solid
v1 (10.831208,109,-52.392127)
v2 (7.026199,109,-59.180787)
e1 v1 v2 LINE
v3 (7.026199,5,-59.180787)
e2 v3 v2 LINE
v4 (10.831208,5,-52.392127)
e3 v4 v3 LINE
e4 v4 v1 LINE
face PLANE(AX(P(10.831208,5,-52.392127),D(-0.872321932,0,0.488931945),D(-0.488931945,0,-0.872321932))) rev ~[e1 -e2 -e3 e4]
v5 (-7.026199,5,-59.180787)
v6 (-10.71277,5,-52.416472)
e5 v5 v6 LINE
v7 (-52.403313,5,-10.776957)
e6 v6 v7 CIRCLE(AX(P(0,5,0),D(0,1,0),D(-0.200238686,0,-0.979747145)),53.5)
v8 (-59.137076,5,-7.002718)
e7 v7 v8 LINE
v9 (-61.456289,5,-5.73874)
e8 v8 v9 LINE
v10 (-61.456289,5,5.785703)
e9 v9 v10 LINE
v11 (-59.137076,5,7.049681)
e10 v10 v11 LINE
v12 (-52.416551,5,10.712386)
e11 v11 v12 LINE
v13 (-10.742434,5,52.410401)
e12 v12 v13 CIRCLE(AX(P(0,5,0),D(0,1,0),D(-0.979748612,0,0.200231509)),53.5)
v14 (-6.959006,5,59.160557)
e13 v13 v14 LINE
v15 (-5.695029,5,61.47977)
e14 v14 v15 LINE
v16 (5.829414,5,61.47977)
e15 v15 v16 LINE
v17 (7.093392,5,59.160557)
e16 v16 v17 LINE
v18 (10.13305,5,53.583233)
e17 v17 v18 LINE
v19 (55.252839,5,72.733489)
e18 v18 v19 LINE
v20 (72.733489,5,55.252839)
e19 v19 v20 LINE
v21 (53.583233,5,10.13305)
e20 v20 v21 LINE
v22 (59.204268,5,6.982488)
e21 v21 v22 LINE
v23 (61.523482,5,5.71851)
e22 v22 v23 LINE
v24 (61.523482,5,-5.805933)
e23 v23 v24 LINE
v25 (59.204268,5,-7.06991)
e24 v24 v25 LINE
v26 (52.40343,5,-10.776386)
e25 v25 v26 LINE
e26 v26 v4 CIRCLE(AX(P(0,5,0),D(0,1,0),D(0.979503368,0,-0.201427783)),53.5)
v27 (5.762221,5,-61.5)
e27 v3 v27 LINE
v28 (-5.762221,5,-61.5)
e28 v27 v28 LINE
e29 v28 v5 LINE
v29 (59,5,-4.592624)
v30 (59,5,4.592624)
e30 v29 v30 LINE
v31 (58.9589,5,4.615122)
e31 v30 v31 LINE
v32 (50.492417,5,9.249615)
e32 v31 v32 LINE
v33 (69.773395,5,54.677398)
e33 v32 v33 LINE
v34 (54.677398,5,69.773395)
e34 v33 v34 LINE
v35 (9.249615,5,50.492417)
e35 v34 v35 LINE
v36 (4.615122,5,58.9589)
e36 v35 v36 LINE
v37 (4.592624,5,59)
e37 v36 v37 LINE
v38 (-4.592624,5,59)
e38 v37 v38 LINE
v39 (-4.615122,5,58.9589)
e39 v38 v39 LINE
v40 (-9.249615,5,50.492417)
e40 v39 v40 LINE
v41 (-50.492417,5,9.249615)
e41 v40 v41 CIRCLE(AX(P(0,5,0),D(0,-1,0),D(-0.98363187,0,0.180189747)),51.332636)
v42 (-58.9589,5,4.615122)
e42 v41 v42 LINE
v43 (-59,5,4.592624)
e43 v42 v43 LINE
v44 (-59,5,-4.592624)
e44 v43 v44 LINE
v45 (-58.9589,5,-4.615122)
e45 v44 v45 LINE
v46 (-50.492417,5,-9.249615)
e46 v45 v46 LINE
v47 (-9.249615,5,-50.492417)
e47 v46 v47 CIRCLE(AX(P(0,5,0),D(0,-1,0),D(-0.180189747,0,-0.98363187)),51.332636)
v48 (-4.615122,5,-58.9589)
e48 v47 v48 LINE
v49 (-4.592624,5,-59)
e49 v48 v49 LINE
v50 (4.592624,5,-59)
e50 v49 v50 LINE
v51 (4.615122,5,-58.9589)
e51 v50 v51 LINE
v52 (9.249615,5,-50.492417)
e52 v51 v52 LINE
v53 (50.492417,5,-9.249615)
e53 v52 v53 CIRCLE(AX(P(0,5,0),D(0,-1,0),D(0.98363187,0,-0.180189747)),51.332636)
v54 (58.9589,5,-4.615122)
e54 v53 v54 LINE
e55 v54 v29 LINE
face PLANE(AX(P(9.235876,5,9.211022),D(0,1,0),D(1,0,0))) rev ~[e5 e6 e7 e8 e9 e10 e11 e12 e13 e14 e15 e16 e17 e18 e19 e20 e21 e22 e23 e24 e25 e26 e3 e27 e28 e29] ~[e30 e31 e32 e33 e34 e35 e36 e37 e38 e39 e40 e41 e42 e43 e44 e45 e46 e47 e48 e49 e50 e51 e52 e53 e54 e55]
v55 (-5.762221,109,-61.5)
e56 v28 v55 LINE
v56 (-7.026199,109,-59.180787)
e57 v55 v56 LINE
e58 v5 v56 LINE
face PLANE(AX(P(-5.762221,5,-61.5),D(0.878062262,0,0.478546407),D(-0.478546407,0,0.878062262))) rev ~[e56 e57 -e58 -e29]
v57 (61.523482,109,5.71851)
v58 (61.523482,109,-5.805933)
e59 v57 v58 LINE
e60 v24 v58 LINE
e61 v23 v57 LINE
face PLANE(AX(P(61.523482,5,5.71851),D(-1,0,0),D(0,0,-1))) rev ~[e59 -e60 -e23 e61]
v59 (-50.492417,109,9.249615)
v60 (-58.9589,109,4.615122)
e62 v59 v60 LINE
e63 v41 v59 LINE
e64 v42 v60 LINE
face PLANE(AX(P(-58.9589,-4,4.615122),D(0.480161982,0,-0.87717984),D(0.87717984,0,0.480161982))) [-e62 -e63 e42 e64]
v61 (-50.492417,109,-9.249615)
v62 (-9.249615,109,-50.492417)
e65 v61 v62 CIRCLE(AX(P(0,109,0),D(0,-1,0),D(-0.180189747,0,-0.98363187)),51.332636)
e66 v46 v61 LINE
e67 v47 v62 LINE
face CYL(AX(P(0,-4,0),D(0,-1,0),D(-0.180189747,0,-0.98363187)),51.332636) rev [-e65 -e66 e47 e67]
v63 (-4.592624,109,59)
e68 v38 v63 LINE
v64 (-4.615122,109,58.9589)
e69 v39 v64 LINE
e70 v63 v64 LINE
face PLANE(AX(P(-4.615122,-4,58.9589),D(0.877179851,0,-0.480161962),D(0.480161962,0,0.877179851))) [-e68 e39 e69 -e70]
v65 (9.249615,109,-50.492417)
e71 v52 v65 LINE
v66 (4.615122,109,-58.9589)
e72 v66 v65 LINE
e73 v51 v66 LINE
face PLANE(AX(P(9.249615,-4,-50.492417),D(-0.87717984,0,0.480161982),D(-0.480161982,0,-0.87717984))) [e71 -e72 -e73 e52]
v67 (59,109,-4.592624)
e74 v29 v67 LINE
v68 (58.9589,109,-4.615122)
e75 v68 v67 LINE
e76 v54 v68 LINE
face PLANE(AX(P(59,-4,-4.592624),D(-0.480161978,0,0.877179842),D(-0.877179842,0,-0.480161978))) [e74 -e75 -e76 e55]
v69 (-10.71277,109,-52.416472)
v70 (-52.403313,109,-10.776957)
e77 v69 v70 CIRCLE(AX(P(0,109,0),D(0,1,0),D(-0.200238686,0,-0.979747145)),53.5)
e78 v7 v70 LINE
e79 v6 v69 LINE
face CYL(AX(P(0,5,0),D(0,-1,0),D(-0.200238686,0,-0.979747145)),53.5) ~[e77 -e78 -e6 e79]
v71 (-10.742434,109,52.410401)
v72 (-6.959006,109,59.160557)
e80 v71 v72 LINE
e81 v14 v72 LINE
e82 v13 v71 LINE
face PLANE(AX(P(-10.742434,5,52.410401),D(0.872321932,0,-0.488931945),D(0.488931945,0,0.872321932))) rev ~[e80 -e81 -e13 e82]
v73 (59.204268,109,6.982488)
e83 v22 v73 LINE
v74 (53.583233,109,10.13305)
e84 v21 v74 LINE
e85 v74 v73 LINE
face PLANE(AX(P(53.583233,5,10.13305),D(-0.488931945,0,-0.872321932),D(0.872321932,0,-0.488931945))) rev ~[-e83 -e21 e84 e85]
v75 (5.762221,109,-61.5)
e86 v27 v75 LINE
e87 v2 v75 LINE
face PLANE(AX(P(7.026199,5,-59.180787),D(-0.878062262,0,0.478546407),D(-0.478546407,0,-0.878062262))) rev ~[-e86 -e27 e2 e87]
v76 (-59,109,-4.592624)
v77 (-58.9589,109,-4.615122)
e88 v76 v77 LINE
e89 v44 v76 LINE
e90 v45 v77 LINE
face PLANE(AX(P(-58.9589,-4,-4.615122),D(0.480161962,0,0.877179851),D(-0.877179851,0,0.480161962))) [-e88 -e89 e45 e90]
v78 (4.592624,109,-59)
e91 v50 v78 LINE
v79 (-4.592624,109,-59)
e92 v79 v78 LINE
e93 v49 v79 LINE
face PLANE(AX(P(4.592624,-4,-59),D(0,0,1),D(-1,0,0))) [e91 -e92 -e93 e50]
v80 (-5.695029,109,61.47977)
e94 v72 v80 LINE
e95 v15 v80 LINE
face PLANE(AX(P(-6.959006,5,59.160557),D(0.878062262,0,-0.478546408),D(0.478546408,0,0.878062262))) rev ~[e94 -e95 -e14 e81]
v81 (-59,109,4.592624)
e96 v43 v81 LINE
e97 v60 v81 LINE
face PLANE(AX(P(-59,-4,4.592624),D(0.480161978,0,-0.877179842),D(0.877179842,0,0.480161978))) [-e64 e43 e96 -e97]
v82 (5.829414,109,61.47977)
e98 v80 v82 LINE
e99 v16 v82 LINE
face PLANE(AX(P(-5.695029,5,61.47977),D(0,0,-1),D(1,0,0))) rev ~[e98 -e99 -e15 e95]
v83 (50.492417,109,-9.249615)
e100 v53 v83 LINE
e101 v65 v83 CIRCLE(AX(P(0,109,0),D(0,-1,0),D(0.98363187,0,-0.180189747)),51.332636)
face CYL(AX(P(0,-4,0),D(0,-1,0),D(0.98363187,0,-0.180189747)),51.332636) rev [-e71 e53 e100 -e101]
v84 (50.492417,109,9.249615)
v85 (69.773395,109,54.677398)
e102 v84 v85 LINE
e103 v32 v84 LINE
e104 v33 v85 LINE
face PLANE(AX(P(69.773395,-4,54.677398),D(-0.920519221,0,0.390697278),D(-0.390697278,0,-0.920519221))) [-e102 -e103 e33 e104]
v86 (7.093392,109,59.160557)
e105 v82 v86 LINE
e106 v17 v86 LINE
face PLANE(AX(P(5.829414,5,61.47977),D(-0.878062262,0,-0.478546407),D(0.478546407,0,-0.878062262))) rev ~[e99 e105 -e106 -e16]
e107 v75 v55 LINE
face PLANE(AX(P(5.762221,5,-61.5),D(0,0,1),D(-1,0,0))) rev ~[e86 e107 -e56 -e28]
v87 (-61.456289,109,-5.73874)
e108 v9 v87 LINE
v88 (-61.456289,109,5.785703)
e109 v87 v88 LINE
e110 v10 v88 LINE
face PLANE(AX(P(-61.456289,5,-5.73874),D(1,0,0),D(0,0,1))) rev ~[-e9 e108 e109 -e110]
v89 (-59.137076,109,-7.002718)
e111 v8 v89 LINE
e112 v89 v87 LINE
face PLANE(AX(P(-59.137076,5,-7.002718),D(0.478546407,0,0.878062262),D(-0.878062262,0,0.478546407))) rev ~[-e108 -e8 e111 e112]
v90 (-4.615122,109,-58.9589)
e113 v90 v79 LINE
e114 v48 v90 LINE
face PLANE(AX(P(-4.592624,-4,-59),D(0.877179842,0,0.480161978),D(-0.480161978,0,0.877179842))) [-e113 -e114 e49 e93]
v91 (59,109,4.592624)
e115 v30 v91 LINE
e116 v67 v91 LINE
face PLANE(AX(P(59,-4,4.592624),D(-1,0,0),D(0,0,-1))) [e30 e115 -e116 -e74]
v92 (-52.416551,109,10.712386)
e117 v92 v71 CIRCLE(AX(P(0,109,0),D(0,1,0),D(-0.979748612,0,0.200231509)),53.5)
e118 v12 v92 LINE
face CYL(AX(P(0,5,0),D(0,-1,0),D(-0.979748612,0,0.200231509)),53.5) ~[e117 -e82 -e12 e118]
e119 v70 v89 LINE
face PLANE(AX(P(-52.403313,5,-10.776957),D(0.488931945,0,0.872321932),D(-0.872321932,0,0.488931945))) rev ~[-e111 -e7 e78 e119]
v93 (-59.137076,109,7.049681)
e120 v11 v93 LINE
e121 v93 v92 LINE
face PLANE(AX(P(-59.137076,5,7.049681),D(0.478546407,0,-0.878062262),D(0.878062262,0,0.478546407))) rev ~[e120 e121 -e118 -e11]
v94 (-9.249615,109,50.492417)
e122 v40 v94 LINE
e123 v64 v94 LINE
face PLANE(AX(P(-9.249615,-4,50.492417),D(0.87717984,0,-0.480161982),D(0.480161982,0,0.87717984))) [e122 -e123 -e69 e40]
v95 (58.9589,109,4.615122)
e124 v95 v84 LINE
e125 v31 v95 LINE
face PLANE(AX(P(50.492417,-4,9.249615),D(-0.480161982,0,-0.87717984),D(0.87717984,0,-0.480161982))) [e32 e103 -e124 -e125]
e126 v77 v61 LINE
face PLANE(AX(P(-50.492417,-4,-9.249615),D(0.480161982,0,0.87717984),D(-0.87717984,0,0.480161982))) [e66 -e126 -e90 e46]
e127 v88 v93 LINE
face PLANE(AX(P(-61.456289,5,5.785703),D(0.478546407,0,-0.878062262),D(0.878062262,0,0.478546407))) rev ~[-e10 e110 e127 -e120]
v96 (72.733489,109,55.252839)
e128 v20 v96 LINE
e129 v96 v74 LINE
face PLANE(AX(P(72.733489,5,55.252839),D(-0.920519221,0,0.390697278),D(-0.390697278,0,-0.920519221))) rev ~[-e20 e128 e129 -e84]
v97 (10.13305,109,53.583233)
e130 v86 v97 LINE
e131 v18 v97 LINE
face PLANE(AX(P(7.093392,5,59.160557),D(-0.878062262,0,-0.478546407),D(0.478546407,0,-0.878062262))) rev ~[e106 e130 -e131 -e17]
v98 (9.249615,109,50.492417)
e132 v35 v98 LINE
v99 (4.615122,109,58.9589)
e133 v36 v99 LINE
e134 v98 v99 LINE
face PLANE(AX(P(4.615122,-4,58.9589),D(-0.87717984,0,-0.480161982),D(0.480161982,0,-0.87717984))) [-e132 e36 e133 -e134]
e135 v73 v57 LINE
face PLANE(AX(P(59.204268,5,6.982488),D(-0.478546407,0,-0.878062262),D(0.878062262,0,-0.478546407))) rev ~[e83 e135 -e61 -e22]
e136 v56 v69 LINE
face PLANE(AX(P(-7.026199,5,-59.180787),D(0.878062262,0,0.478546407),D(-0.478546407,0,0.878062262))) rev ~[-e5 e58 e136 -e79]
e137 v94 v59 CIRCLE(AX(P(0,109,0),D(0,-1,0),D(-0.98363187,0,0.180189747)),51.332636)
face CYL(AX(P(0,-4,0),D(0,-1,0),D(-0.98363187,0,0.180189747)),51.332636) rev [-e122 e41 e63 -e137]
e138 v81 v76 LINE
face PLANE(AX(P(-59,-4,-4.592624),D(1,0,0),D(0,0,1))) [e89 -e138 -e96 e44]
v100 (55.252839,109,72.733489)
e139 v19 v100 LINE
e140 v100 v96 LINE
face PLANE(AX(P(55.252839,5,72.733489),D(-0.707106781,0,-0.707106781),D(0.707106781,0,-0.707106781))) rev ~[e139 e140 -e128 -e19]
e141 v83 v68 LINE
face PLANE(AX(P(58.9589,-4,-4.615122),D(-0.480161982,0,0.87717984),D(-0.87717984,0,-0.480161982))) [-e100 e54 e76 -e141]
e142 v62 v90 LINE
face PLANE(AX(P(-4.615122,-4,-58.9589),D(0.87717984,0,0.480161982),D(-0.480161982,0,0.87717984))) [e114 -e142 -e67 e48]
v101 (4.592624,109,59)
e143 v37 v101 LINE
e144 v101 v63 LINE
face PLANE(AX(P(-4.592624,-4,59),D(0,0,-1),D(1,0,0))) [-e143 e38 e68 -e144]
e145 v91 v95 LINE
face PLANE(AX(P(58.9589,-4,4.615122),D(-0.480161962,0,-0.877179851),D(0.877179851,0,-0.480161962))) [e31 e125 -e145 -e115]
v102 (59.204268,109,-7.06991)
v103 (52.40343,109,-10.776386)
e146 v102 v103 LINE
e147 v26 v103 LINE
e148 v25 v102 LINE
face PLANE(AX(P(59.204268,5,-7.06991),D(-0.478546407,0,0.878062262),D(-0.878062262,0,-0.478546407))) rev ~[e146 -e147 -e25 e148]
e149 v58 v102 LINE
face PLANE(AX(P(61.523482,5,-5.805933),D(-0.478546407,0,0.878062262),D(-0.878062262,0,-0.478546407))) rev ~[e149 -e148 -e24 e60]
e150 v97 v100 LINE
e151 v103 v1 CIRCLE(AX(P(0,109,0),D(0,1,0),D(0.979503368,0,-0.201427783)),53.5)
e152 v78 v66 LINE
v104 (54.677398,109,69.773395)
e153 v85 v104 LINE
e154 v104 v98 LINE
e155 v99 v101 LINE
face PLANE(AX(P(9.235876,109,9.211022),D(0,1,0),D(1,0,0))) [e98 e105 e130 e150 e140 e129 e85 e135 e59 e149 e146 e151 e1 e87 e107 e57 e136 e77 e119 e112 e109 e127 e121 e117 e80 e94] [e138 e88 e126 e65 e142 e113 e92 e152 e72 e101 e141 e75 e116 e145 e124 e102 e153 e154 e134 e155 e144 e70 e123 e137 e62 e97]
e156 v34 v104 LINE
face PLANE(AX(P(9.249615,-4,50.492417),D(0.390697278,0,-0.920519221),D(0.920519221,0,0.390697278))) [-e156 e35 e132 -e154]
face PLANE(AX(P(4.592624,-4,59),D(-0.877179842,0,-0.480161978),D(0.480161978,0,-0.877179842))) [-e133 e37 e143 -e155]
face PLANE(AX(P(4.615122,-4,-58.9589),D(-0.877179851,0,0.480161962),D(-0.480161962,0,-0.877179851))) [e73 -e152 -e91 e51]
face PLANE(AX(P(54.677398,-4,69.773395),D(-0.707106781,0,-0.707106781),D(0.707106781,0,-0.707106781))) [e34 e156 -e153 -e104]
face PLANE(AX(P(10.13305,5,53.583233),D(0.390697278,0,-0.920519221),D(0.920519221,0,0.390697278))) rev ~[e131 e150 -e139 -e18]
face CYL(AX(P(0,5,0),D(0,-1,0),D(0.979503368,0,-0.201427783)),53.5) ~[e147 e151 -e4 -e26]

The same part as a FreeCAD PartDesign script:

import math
import FreeCAD as App
import Part
import Sketcher
Q = App.Units.Quantity

doc = App.newDocument("Part")
body = doc.addObject("PartDesign::Body", "Body")

# Sketch on XZ plane
sketch1 = body.newObject("Sketcher::SketchObject", "Sketch")
sketch1.AttachmentSupport = (doc.getObject("XZ_Plane"), [""])
sketch1.MapMode = "FlatFace"
sketch1.addGeometry([
    Part.LineSegment(App.Vector(9, -49, 0), App.Vector(4, -58, 0)),  # 0
    Part.LineSegment(App.Vector(4, -58, 0), App.Vector(-4, -58, 0)),  # 1
    Part.LineSegment(App.Vector(-4, -58, 0), App.Vector(-9, -49, 0)),  # 2
    Part.ArcOfCircle(Part.Circle(App.Vector(0, 0, 0), App.Vector(0, 0, 1), 50), math.radians(-170), math.radians(-100)),  # 3
    Part.LineSegment(App.Vector(-49, -9, 0), App.Vector(-58, -4, 0)),  # 4
    Part.LineSegment(App.Vector(-58, -4, 0), App.Vector(-58, 4, 0)),  # 5
    Part.LineSegment(App.Vector(-58, 4, 0), App.Vector(-49, 9, 0)),  # 6
    Part.ArcOfCircle(Part.Circle(App.Vector(0, 0, 0), App.Vector(0, 0, 1), 50), math.radians(100), math.radians(170)),  # 7
    Part.LineSegment(App.Vector(-9, 49, 0), App.Vector(-4, 58, 0)),  # 8
    Part.LineSegment(App.Vector(-4, 58, 0), App.Vector(4, 58, 0)),  # 9
    Part.LineSegment(App.Vector(4, 58, 0), App.Vector(9, 49, 0)),  # 10
    Part.ArcOfCircle(Part.Circle(App.Vector(0, 0, 0), App.Vector(0, 0, 1), 50), math.radians(10), math.radians(80)),  # 11
    Part.LineSegment(App.Vector(49, 9, 0), App.Vector(58, 4, 0)),  # 12
    Part.LineSegment(App.Vector(58, 4, 0), App.Vector(58, -4, 0)),  # 13
    Part.LineSegment(App.Vector(58, -4, 0), App.Vector(49, -9, 0)),  # 14
    Part.ArcOfCircle(Part.Circle(App.Vector(0, 0, 0), App.Vector(0, 0, 1), 50), math.radians(-80), math.radians(-10)),  # 15
], False)
sketch1.addConstraint([
    Sketcher.Constraint("Coincident", 0, 2, 1, 1),
    Sketcher.Constraint("Coincident", 1, 2, 2, 1),
    Sketcher.Constraint("Coincident", 2, 2, 3, 2),
    Sketcher.Constraint("Coincident", 3, 1, 4, 1),
    Sketcher.Constraint("Coincident", 4, 2, 5, 1),
    Sketcher.Constraint("Coincident", 5, 2, 6, 1),
    Sketcher.Constraint("Coincident", 6, 2, 7, 2),
    Sketcher.Constraint("Coincident", 7, 1, 8, 1),
    Sketcher.Constraint("Coincident", 8, 2, 9, 1),
    Sketcher.Constraint("Coincident", 9, 2, 10, 1),
    Sketcher.Constraint("Coincident", 10, 2, 11, 2),
    Sketcher.Constraint("Coincident", 11, 1, 12, 1),
    Sketcher.Constraint("Coincident", 12, 2, 13, 1),
    Sketcher.Constraint("Coincident", 13, 2, 14, 1),
    Sketcher.Constraint("Coincident", 14, 2, 15, 2),
    Sketcher.Constraint("Coincident", 15, 1, 0, 1),
    Sketcher.Constraint("Horizontal", 1),
    Sketcher.Constraint("Vertical", 5),
    Sketcher.Constraint("Horizontal", 9),
    Sketcher.Constraint("Vertical", 13),
    Sketcher.Constraint("Coincident", 3, 3, -1, 1),
    Sketcher.Constraint("Coincident", 7, 3, -1, 1),
    Sketcher.Constraint("Coincident", 11, 3, -1, 1),
    Sketcher.Constraint("Coincident", 15, 3, -1, 1),
    Sketcher.Constraint("Equal", 3, 7),
    Sketcher.Constraint("Equal", 7, 11),
    Sketcher.Constraint("Equal", 11, 15),
    Sketcher.Constraint("Symmetric", 0, 2, 8, 2, -1, 1),
    Sketcher.Constraint("Symmetric", 4, 2, 12, 2, -1, 1),
    Sketcher.Constraint("Perpendicular", 0, 4),
    Sketcher.Constraint("Perpendicular", 2, 6),
    Sketcher.Constraint("Perpendicular", 4, 8),
    Sketcher.Constraint("Perpendicular", 6, 10),
    Sketcher.Constraint("Perpendicular", 8, 12),
    Sketcher.Constraint("Perpendicular", 10, 14),
    Sketcher.Constraint("Horizontal", 7, 1, 10, 2),
    Sketcher.Constraint("Horizontal", 6, 2, 11, 1),
    Sketcher.Constraint("Horizontal", 5, 2, 12, 2),
    Sketcher.Constraint("Horizontal", 4, 2, 13, 2),
    Sketcher.Constraint("Horizontal", 2, 2, 15, 1),
    Sketcher.Constraint("Equal", 9, 5),
    Sketcher.Constraint("Equal", 2, 4),
    Sketcher.Constraint("Radius", 3, 50.0),
    Sketcher.Constraint("DistanceX", 1, 2, 1, 1, 8.0),
    Sketcher.Constraint("DistanceY", 0, 2, -1, 1, 58.0),
    Sketcher.Constraint("DistanceX", 2, 2, -1, 1, 8.807071),
])
pad1 = body.newObject("PartDesign::Pad", "Pad")
pad1.Profile = sketch1
pad1.Length = 5
pad1.Reversed = True

# Sketch on XZ plane
sketch2 = body.newObject("Sketcher::SketchObject", "Sketch001")
sketch2.AttachmentSupport = (doc.getObject("XZ_Plane"), [""])
sketch2.MapMode = "FlatFace"
sketch2.AttachmentOffset = App.Placement(App.Vector(0, 0, -5), App.Rotation())
sketch2.addGeometry([
    Part.Circle(App.Vector(0, -52.7, 0), App.Vector(0, 0, 1), 2.1),
    Part.Circle(App.Vector(52.7, 0, 0), App.Vector(0, 0, 1), 2.1),
    Part.Circle(App.Vector(0, 52.7, 0), App.Vector(0, 0, 1), 2.1),
    Part.Circle(App.Vector(-52.7, 0, 0), App.Vector(0, 0, 1), 2.1),
], False)
sketch2.addConstraint([
    Sketcher.Constraint("Equal", 0, 1),
    Sketcher.Constraint("Equal", 1, 2),
    Sketcher.Constraint("Equal", 2, 3),
    Sketcher.Constraint("Symmetric", 0, 3, 2, 3, -1, 1),
    Sketcher.Constraint("Symmetric", 1, 3, 3, 3, -1, 1),
    Sketcher.Constraint("PointOnObject", 0, 3, -2),
    Sketcher.Constraint("PointOnObject", 1, 3, -1),
    Sketcher.Constraint("Diameter", 0, 4.2),
    Sketcher.Constraint("DistanceY", 0, 3, -1, 1, 52.7),
    Sketcher.Constraint("DistanceX", -1, 1, 1, 3, 52.7),
])
pocket1 = body.newObject("PartDesign::Pocket", "Pocket")
pocket1.Profile = sketch2
pocket1.Type = "ThroughAll"
pocket1.Reversed = True

# Sketch on XZ plane
sketch3 = body.newObject("Sketcher::SketchObject", "Sketch002")
sketch3.AttachmentSupport = (doc.getObject("XZ_Plane"), [""])
sketch3.MapMode = "FlatFace"
sketch3.AttachmentOffset = App.Placement(App.Vector(0, 0, -5), App.Rotation())
sketch3.addGeometry([
    Part.LineSegment(App.Vector(35, 21, 0), App.Vector(21, 35, 0)),  # 0
    Part.LineSegment(App.Vector(21, 35, 0), App.Vector(33, 47, 0)),  # 1
    Part.LineSegment(App.Vector(33, 47, 0), App.Vector(53, 67, 0)),  # 2
    Part.LineSegment(App.Vector(53, 67, 0), App.Vector(67, 53, 0)),  # 3
    Part.LineSegment(App.Vector(67, 53, 0), App.Vector(47, 33, 0)),  # 4
    Part.LineSegment(App.Vector(47, 33, 0), App.Vector(35, 21, 0)),  # 5
], False)
sketch3.addConstraint([
    Sketcher.Constraint("Coincident", 0, 2, 1, 1),
    Sketcher.Constraint("Coincident", 1, 2, 2, 1),
    Sketcher.Constraint("Coincident", 2, 2, 3, 1),
    Sketcher.Constraint("Coincident", 3, 2, 4, 1),
    Sketcher.Constraint("Coincident", 4, 2, 5, 1),
    Sketcher.Constraint("Coincident", 5, 2, 0, 1),
    Sketcher.Constraint("Perpendicular", 0, 1),
    Sketcher.Constraint("Parallel", 1, 2),
    Sketcher.Constraint("Perpendicular", 2, 3),
    Sketcher.Constraint("Perpendicular", 3, 4),
    Sketcher.Constraint("Parallel", 4, 5),
    Sketcher.Constraint("Equal", 2, 4),
    Sketcher.Constraint("Angle", 0, Q("135 deg")),
    Sketcher.Constraint("Distance", 0, 20.0),
    Sketcher.Constraint("Distance", 1, 18.0),
    Sketcher.Constraint("Distance", 2, 28.06195),
    Sketcher.Constraint("DistanceX", -1, 1, 1, 2, 33.234019),
    Sketcher.Constraint("DistanceY", -1, 1, 2, 2, 67.218949),
])
pocket2 = body.newObject("PartDesign::Pocket", "Pocket001")
pocket2.Profile = sketch3
pocket2.Type = "ThroughAll"
pocket2.Reversed = True

# Sketch on XZ plane
sketch4 = body.newObject("Sketcher::SketchObject", "Sketch003")
sketch4.AttachmentSupport = (doc.getObject("XZ_Plane"), [""])
sketch4.MapMode = "FlatFace"
sketch4.AttachmentOffset = App.Placement(App.Vector(0, 0, -5), App.Rotation())
sketch4.addGeometry([
    Part.Circle(App.Vector(-7.8, -7.8, 0), App.Vector(0, 0, 1), 2),  # 0
    Part.Circle(App.Vector(7.8, -7.8, 0), App.Vector(0, 0, 1), 2),  # 1
    Part.Circle(App.Vector(7.8, 7.8, 0), App.Vector(0, 0, 1), 2),  # 2
    Part.Circle(App.Vector(-7.8, 7.8, 0), App.Vector(0, 0, 1), 2),  # 3
    Part.LineSegment(App.Vector(21.6, 30, 0), App.Vector(23.3, 31.8, 0)),  # 4
    Part.LineSegment(App.Vector(23.3, 31.8, 0), App.Vector(24.7, 30.4, 0)),  # 5
    Part.LineSegment(App.Vector(24.7, 30.4, 0), App.Vector(23, 28.6, 0)),  # 6
    Part.ArcOfCircle(Part.Circle(App.Vector(21, 28.1, 0), App.Vector(0, 0, 1), 2), math.radians(75), math.radians(375)),  # 7
    Part.LineSegment(App.Vector(28.6, 23, 0), App.Vector(31, 25.3, 0)),  # 8
    Part.LineSegment(App.Vector(31, 25.3, 0), App.Vector(32.4, 23.9, 0)),  # 9
    Part.LineSegment(App.Vector(32.4, 23.9, 0), App.Vector(30, 21.6, 0)),  # 10
    Part.ArcOfCircle(Part.Circle(App.Vector(28.1, 21, 0), App.Vector(0, 0, 1), 2), math.radians(75), math.radians(375)),  # 11
], False)
sketch4.addConstraint([
    Sketcher.Constraint("Coincident", 4, 2, 5, 1),
    Sketcher.Constraint("Coincident", 5, 2, 6, 1),
    Sketcher.Constraint("Coincident", 6, 2, 7, 2),
    Sketcher.Constraint("Coincident", 7, 1, 4, 1),
    Sketcher.Constraint("Coincident", 8, 2, 9, 1),
    Sketcher.Constraint("Coincident", 9, 2, 10, 1),
    Sketcher.Constraint("Coincident", 10, 2, 11, 2),
    Sketcher.Constraint("Coincident", 11, 1, 8, 1),
    Sketcher.Constraint("Equal", 0, 1),
    Sketcher.Constraint("Equal", 1, 2),
    Sketcher.Constraint("Equal", 2, 3),
    Sketcher.Constraint("Equal", 7, 11),
    Sketcher.Constraint("Symmetric", 0, 3, 2, 3, -1, 1),
    Sketcher.Constraint("Symmetric", 1, 3, 3, 3, -1, 1),
    Sketcher.Constraint("Symmetric", 0, 3, 1, 3, -2),
    Sketcher.Constraint("Perpendicular", 4, 5),
    Sketcher.Constraint("Perpendicular", 5, 6),
    Sketcher.Constraint("Parallel", 6, 8),
    Sketcher.Constraint("Perpendicular", 8, 9),
    Sketcher.Constraint("Perpendicular", 9, 10),
    Sketcher.Constraint("Equal", 4, 6),
    Sketcher.Constraint("Equal", 5, 9),
    Sketcher.Constraint("Equal", 8, 10),
    Sketcher.Constraint("Radius", 7, 2.0),
    Sketcher.Constraint("Diameter", 0, 4.1),
    Sketcher.Constraint("Angle", 4, Q("45 deg")),
    Sketcher.Constraint("Distance", 5, 2.0),
    Sketcher.Constraint("DistanceX", 0, 3, -1, 1, 7.78),
    Sketcher.Constraint("DistanceY", 0, 3, -1, 1, 7.78),
    Sketcher.Constraint("DistanceY", 9, 2, 4, 2, 7.904699),
    Sketcher.Constraint("Distance", 4, 2.517949),
    Sketcher.Constraint("DistanceY", -1, 1, 5, 2, 30.405592),
    Sketcher.Constraint("DistanceX", -1, 1, 6, 2, 22.968278),
    Sketcher.Constraint("DistanceY", -1, 1, 11, 1, 22.968278),
    Sketcher.Constraint("DistanceX", 4, 2, 11, 3, 4.772971),
])
pocket3 = body.newObject("PartDesign::Pocket", "Pocket002")
pocket3.Profile = sketch4
pocket3.Type = "ThroughAll"
pocket3.Reversed = True

# Sketch on XZ plane
sketch5 = body.newObject("Sketcher::SketchObject", "Sketch004")
sketch5.AttachmentSupport = (doc.getObject("XZ_Plane"), [""])
sketch5.MapMode = "FlatFace"
sketch5.AttachmentOffset = App.Placement(App.Vector(0, 0, -5), App.Rotation())
sketch5.addGeometry([
    Part.LineSegment(App.Vector(54, 69, 0), App.Vector(69, 54, 0)),  # 0
    Part.LineSegment(App.Vector(69, 54, 0), App.Vector(49, 9, 0)),  # 1
    Part.LineSegment(App.Vector(49, 9, 0), App.Vector(46, 19, 0)),  # 2
    Part.LineSegment(App.Vector(46, 19, 0), App.Vector(42, 28, 0)),  # 3
    Part.LineSegment(App.Vector(42, 28, 0), App.Vector(63, 49, 0)),  # 4
    Part.LineSegment(App.Vector(63, 49, 0), App.Vector(49, 63, 0)),  # 5
    Part.LineSegment(App.Vector(49, 63, 0), App.Vector(28, 42, 0)),  # 6
    Part.LineSegment(App.Vector(28, 42, 0), App.Vector(19, 46, 0)),  # 7
    Part.LineSegment(App.Vector(19, 46, 0), App.Vector(9, 49, 0)),  # 8
    Part.LineSegment(App.Vector(9, 49, 0), App.Vector(54, 69, 0)),  # 9
], False)
sketch5.addConstraint([
    Sketcher.Constraint("Coincident", 0, 2, 1, 1),
    Sketcher.Constraint("Coincident", 1, 2, 2, 1),
    Sketcher.Constraint("Coincident", 2, 2, 3, 1),
    Sketcher.Constraint("Coincident", 3, 2, 4, 1),
    Sketcher.Constraint("Coincident", 4, 2, 5, 1),
    Sketcher.Constraint("Coincident", 5, 2, 6, 1),
    Sketcher.Constraint("Coincident", 6, 2, 7, 1),
    Sketcher.Constraint("Coincident", 7, 2, 8, 1),
    Sketcher.Constraint("Coincident", 8, 2, 9, 1),
    Sketcher.Constraint("Coincident", 9, 2, 0, 1),
    Sketcher.Constraint("Perpendicular", 0, 4),
    Sketcher.Constraint("Perpendicular", 4, 5),
    Sketcher.Constraint("Perpendicular", 5, 6),
    Sketcher.Constraint("Equal", 2, 3),
    Sketcher.Constraint("Equal", 0, 5),
    Sketcher.Constraint("Equal", 4, 6),
    Sketcher.Constraint("Equal", 3, 7),
    Sketcher.Constraint("Equal", 7, 8),
    Sketcher.Constraint("Equal", 1, 9),
    Sketcher.Constraint("Angle", 0, Q("-45 deg")),
    Sketcher.Constraint("Distance", 0, 20.0),
    Sketcher.Constraint("DistanceY", 2, 2, 6, 2, 23.140399),
    Sketcher.Constraint("DistanceX", 7, 2, 3, 2, 23.140399),
    Sketcher.Constraint("Distance", 1, 49.580878),
    Sketcher.Constraint("Distance", 2, 10.156831),
    Sketcher.Constraint("DistanceY", -1, 1, 1, 2, 8.807071),
    Sketcher.Constraint("DistanceY", -1, 1, 3, 2, 27.569948),
    Sketcher.Constraint("DistanceX", -1, 1, 6, 2, 27.569948),
    Sketcher.Constraint("DistanceX", -1, 1, 8, 2, 8.807071),
    Sketcher.Constraint("DistanceX", 3, 2, 4, 2, 21.22042),
])
pad2 = body.newObject("PartDesign::Pad", "Pad001")
pad2.Profile = sketch5
pad2.Length = 5

# Sketch on XZ plane
sketch6 = body.newObject("Sketcher::SketchObject", "Sketch005")
sketch6.AttachmentSupport = (doc.getObject("XZ_Plane"), [""])
sketch6.MapMode = "FlatFace"
sketch6.AttachmentOffset = App.Placement(App.Vector(0, 0, -5), App.Rotation())
sketch6.addGeometry([
    Part.LineSegment(App.Vector(54.3, 59.9, 0), App.Vector(51.5, 57.1, 0)),  # 0
    Part.LineSegment(App.Vector(51.5, 57.1, 0), App.Vector(50.1, 58.6, 0)),  # 1
    Part.LineSegment(App.Vector(50.1, 58.6, 0), App.Vector(52.9, 61.4, 0)),  # 2
    Part.ArcOfCircle(Part.Circle(App.Vector(54.8, 61.9, 0), App.Vector(0, 0, 1), 2), math.radians(-105), math.radians(195)),  # 3
    Part.LineSegment(App.Vector(58.8, 50.3, 0), App.Vector(57.4, 51.7, 0)),  # 4
    Part.LineSegment(App.Vector(57.4, 51.7, 0), App.Vector(59.9, 54.3, 0)),  # 5
    Part.ArcOfCircle(Part.Circle(App.Vector(61.9, 54.8, 0), App.Vector(0, 0, 1), 2), math.radians(-105), math.radians(195)),  # 6
    Part.LineSegment(App.Vector(61.4, 52.9, 0), App.Vector(58.8, 50.3, 0)),  # 7
], False)
sketch6.addConstraint([
    Sketcher.Constraint("Coincident", 0, 2, 1, 1),
    Sketcher.Constraint("Coincident", 1, 2, 2, 1),
    Sketcher.Constraint("Coincident", 2, 2, 3, 2),
    Sketcher.Constraint("Coincident", 3, 1, 0, 1),
    Sketcher.Constraint("Coincident", 4, 2, 5, 1),
    Sketcher.Constraint("Coincident", 5, 2, 6, 2),
    Sketcher.Constraint("Coincident", 6, 1, 7, 1),
    Sketcher.Constraint("Coincident", 7, 2, 4, 1),
    Sketcher.Constraint("Equal", 3, 6),
    Sketcher.Constraint("Perpendicular", 0, 1),
    Sketcher.Constraint("Perpendicular", 1, 2),
    Sketcher.Constraint("Perpendicular", 2, 4),
    Sketcher.Constraint("Perpendicular", 4, 5),
    Sketcher.Constraint("Parallel", 5, 7),
    Sketcher.Constraint("Equal", 0, 2),
    Sketcher.Constraint("Equal", 1, 4),
    Sketcher.Constraint("Equal", 5, 7),
    Sketcher.Constraint("Radius", 3, 2.0),
    Sketcher.Constraint("Angle", 0, Q("-135 deg")),
    Sketcher.Constraint("Distance", 1, 2.0),
    Sketcher.Constraint("DistanceX", 4, 2, 6, 3, 4.5),
    Sketcher.Constraint("DistanceX", -1, 1, 1, 2, 50.076001),
    Sketcher.Constraint("Distance", 0, 3.94979),
    Sketcher.Constraint("DistanceY", -1, 1, 0, 2, 57.147069),
    Sketcher.Constraint("DistanceY", -1, 1, 4, 2, 51.714989),
    Sketcher.Constraint("DistanceX", -1, 1, 5, 2, 59.939992),
])
pocket4 = body.newObject("PartDesign::Pocket", "Pocket003")
pocket4.Profile = sketch6
pocket4.Type = "ThroughAll"
pocket4.Reversed = True

# Sketch on XZ plane
sketch7 = body.newObject("Sketcher::SketchObject", "Sketch006")
sketch7.AttachmentSupport = (doc.getObject("XZ_Plane"), [""])
sketch7.MapMode = "FlatFace"
sketch7.addGeometry([
    Part.LineSegment(App.Vector(-1.1, -22.5, 0), App.Vector(-1.1, -20.5, 0)),
    Part.ArcOfCircle(Part.Circle(App.Vector(0, 0, 0), App.Vector(0, 0, 1), 20.5), math.radians(-87), math.radians(267)),
    Part.LineSegment(App.Vector(1.1, -20.5, 0), App.Vector(1.1, -22.5, 0)),
    Part.ArcOfCircle(Part.Circle(App.Vector(0, 0, 0), App.Vector(0, 0, 1), 22.5), math.radians(-87), math.radians(267)),
], False)
sketch7.addConstraint([
    Sketcher.Constraint("Coincident", 0, 2, 1, 2),
    Sketcher.Constraint("Coincident", 1, 1, 2, 1),
    Sketcher.Constraint("Coincident", 2, 2, 3, 1),
    Sketcher.Constraint("Coincident", 3, 2, 0, 1),
    Sketcher.Constraint("Vertical", 0),
    Sketcher.Constraint("Vertical", 2),
    Sketcher.Constraint("Coincident", 1, 3, -1, 1),
    Sketcher.Constraint("Coincident", 3, 3, -1, 1),
    Sketcher.Constraint("Horizontal", 0, 2, 1, 1),
    Sketcher.Constraint("Radius", 1, 20.5),
    Sketcher.Constraint("Radius", 3, 22.5),
    Sketcher.Constraint("DistanceX", 0, 2, -1, 1, 1.111111),
])
pad3 = body.newObject("PartDesign::Pad", "Pad002")
pad3.Profile = sketch7
pad3.Length = 4

# Sketch on XZ plane
sketch8 = body.newObject("Sketcher::SketchObject", "Sketch007")
sketch8.AttachmentSupport = (doc.getObject("XZ_Plane"), [""])
sketch8.MapMode = "FlatFace"
sketch8.addGeometry([
    Part.LineSegment(App.Vector(-1.1, -20.5, 0), App.Vector(-1.1, -22.5, 0)),
    Part.ArcOfCircle(Part.Circle(App.Vector(0, 0, 0), App.Vector(0, 0, 1), 22.5), math.radians(-92.83), math.radians(-87.17)),
    Part.LineSegment(App.Vector(1.1, -22.5, 0), App.Vector(1.1, -20.5, 0)),
    Part.ArcOfCircle(Part.Circle(App.Vector(0, 0, 0), App.Vector(0, 0, 1), 20.5), math.radians(-93.11), math.radians(-86.89)),
], False)
sketch8.addConstraint([
    Sketcher.Constraint("Coincident", 0, 2, 1, 1),
    Sketcher.Constraint("Coincident", 1, 2, 2, 1),
    Sketcher.Constraint("Coincident", 2, 2, 3, 2),
    Sketcher.Constraint("Coincident", 3, 1, 0, 1),
    Sketcher.Constraint("Vertical", 0),
    Sketcher.Constraint("Vertical", 2),
    Sketcher.Constraint("Coincident", 1, 3, -1, 1),
    Sketcher.Constraint("Coincident", 3, 3, -1, 1),
    Sketcher.Constraint("Horizontal", 0, 2, 1, 2),
    Sketcher.Constraint("Radius", 1, 22.5),
    Sketcher.Constraint("Radius", 3, 20.5),
    Sketcher.Constraint("DistanceX", 0, 2, -1, 1, 1.111111),
])
pad4 = body.newObject("PartDesign::Pad", "Pad003")
pad4.Profile = sketch8
pad4.Length = 4

# Sketch on XZ plane
sketch9 = body.newObject("Sketcher::SketchObject", "Sketch008")
sketch9.AttachmentSupport = (doc.getObject("XZ_Plane"), [""])
sketch9.MapMode = "FlatFace"
sketch9.addGeometry([
    Part.Circle(App.Vector(42.4, 0, 0), App.Vector(0, 0, 1), 2.4),
    Part.Circle(App.Vector(0, -42.4, 0), App.Vector(0, 0, 1), 2.4),
    Part.Circle(App.Vector(-42.4, 0, 0), App.Vector(0, 0, 1), 2.4),
    Part.Circle(App.Vector(0, 42.4, 0), App.Vector(0, 0, 1), 2.4),
], False)
sketch9.addConstraint([
    Sketcher.Constraint("Equal", 0, 1),
    Sketcher.Constraint("Equal", 1, 2),
    Sketcher.Constraint("Equal", 2, 3),
    Sketcher.Constraint("Symmetric", 0, 3, 2, 3, -1, 1),
    Sketcher.Constraint("Symmetric", 1, 3, 3, 3, -1, 1),
    Sketcher.Constraint("PointOnObject", 0, 3, -1),
    Sketcher.Constraint("PointOnObject", 1, 3, -2),
    Sketcher.Constraint("Diameter", 0, 4.8),
    Sketcher.Constraint("DistanceX", -1, 1, 0, 3, 42.43),
    Sketcher.Constraint("DistanceY", 1, 3, -1, 1, 42.43),
])
pocket5 = body.newObject("PartDesign::Pocket", "Pocket004")
pocket5.Profile = sketch9
pocket5.Type = "ThroughAll"

# Sketch on XZ plane
sketch10 = body.newObject("Sketcher::SketchObject", "Sketch009")
sketch10.AttachmentSupport = (doc.getObject("XZ_Plane"), [""])
sketch10.MapMode = "FlatFace"
sketch10.AttachmentOffset = App.Placement(App.Vector(0, 0, -5), App.Rotation())
sketch10.addGeometry([
    Part.LineSegment(App.Vector(-7, -59.2, 0), App.Vector(-10.7, -52.4, 0)),  # 0
    Part.ArcOfCircle(Part.Circle(App.Vector(0, 0, 0), App.Vector(0, 0, 1), 53.5), math.radians(-168), math.radians(-102)),  # 1
    Part.LineSegment(App.Vector(-52.4, -10.8, 0), App.Vector(-59.1, -7, 0)),  # 2
    Part.LineSegment(App.Vector(-59.1, -7, 0), App.Vector(-61.5, -5.7, 0)),  # 3
    Part.LineSegment(App.Vector(-61.5, -5.7, 0), App.Vector(-61.5, 5.8, 0)),  # 4
    Part.LineSegment(App.Vector(-61.5, 5.8, 0), App.Vector(-59.1, 7, 0)),  # 5
    Part.LineSegment(App.Vector(-59.1, 7, 0), App.Vector(-52.4, 10.7, 0)),  # 6
    Part.ArcOfCircle(Part.Circle(App.Vector(0, 0, 0), App.Vector(0, 0, 1), 53.5), math.radians(102), math.radians(168)),  # 7
    Part.LineSegment(App.Vector(-10.7, 52.4, 0), App.Vector(-7, 59.2, 0)),  # 8
    Part.LineSegment(App.Vector(-7, 59.2, 0), App.Vector(-5.7, 61.5, 0)),  # 9
    Part.LineSegment(App.Vector(-5.7, 61.5, 0), App.Vector(5.8, 61.5, 0)),  # 10
    Part.LineSegment(App.Vector(5.8, 61.5, 0), App.Vector(7.1, 59.2, 0)),  # 11
    Part.LineSegment(App.Vector(7.1, 59.2, 0), App.Vector(10.1, 53.6, 0)),  # 12
    Part.LineSegment(App.Vector(10.1, 53.6, 0), App.Vector(55.3, 72.7, 0)),  # 13
    Part.LineSegment(App.Vector(55.3, 72.7, 0), App.Vector(72.7, 55.3, 0)),  # 14
    Part.LineSegment(App.Vector(72.7, 55.3, 0), App.Vector(53.6, 10.1, 0)),  # 15
    Part.LineSegment(App.Vector(53.6, 10.1, 0), App.Vector(59.2, 7, 0)),  # 16
    Part.LineSegment(App.Vector(59.2, 7, 0), App.Vector(61.5, 5.7, 0)),  # 17
    Part.LineSegment(App.Vector(61.5, 5.7, 0), App.Vector(61.5, -5.8, 0)),  # 18
    Part.LineSegment(App.Vector(61.5, -5.8, 0), App.Vector(59.2, -7.1, 0)),  # 19
    Part.LineSegment(App.Vector(59.2, -7.1, 0), App.Vector(52.4, -10.8, 0)),  # 20
    Part.ArcOfCircle(Part.Circle(App.Vector(0, 0, 0), App.Vector(0, 0, 1), 53.5), math.radians(-78), math.radians(-12)),  # 21
    Part.LineSegment(App.Vector(10.8, -52.4, 0), App.Vector(7, -59.2, 0)),  # 22
    Part.LineSegment(App.Vector(7, -59.2, 0), App.Vector(5.8, -61.5, 0)),  # 23
    Part.LineSegment(App.Vector(5.8, -61.5, 0), App.Vector(-5.8, -61.5, 0)),  # 24
    Part.LineSegment(App.Vector(-5.8, -61.5, 0), App.Vector(-7, -59.2, 0)),  # 25
], False)
sketch10.addConstraint([
    Sketcher.Constraint("Coincident", 0, 2, 1, 2),
    Sketcher.Constraint("Coincident", 1, 1, 2, 1),
    Sketcher.Constraint("Coincident", 2, 2, 3, 1),
    Sketcher.Constraint("Coincident", 3, 2, 4, 1),
    Sketcher.Constraint("Coincident", 4, 2, 5, 1),
    Sketcher.Constraint("Coincident", 5, 2, 6, 1),
    Sketcher.Constraint("Coincident", 6, 2, 7, 2),
    Sketcher.Constraint("Coincident", 7, 1, 8, 1),
    Sketcher.Constraint("Coincident", 8, 2, 9, 1),
    Sketcher.Constraint("Coincident", 9, 2, 10, 1),
    Sketcher.Constraint("Coincident", 10, 2, 11, 1),
    Sketcher.Constraint("Coincident", 11, 2, 12, 1),
    Sketcher.Constraint("Coincident", 12, 2, 13, 1),
    Sketcher.Constraint("Coincident", 13, 2, 14, 1),
    Sketcher.Constraint("Coincident", 14, 2, 15, 1),
    Sketcher.Constraint("Coincident", 15, 2, 16, 1),
    Sketcher.Constraint("Coincident", 16, 2, 17, 1),
    Sketcher.Constraint("Coincident", 17, 2, 18, 1),
    Sketcher.Constraint("Coincident", 18, 2, 19, 1),
    Sketcher.Constraint("Coincident", 19, 2, 20, 1),
    Sketcher.Constraint("Coincident", 20, 2, 21, 2),
    Sketcher.Constraint("Coincident", 21, 1, 22, 1),
    Sketcher.Constraint("Coincident", 22, 2, 23, 1),
    Sketcher.Constraint("Coincident", 23, 2, 24, 1),
    Sketcher.Constraint("Coincident", 24, 2, 25, 1),
    Sketcher.Constraint("Coincident", 25, 2, 0, 1),
    Sketcher.Constraint("Vertical", 4),
    Sketcher.Constraint("Horizontal", 10),
    Sketcher.Constraint("Vertical", 18),
    Sketcher.Constraint("Horizontal", 24),
    Sketcher.Constraint("Coincident", 1, 3, -1, 1),
    Sketcher.Constraint("Coincident", 7, 3, -1, 1),
    Sketcher.Constraint("Coincident", 21, 3, -1, 1),
    Sketcher.Constraint("Equal", 1, 7),
    Sketcher.Constraint("Equal", 7, 21),
    Sketcher.Constraint("Symmetric", 22, 2, 25, 2, -2),
    Sketcher.Constraint("Perpendicular", 0, 5),
    Sketcher.Constraint("Parallel", 5, 6),
    Sketcher.Constraint("Perpendicular", 2, 8),
    Sketcher.Constraint("Perpendicular", 3, 9),
    Sketcher.Constraint("Perpendicular", 6, 11),
    Sketcher.Constraint("Parallel", 11, 12),
    Sketcher.Constraint("Perpendicular", 8, 16),
    Sketcher.Constraint("Perpendicular", 9, 17),
    Sketcher.Constraint("Perpendicular", 12, 19),
    Sketcher.Constraint("Parallel", 19, 20),
    Sketcher.Constraint("Perpendicular", 16, 22),
    Sketcher.Constraint("Perpendicular", 17, 23),
    Sketcher.Constraint("Perpendicular", 20, 25),
    Sketcher.Constraint("Horizontal", 8, 2, 11, 2),
    Sketcher.Constraint("Vertical", 2, 2, 5, 2),
    Sketcher.Constraint("Vertical", 16, 2, 19, 2),
    Sketcher.Constraint("Equal", 10, 24),
    Sketcher.Constraint("Equal", 24, 4),
    Sketcher.Constraint("Equal", 4, 18),
    Sketcher.Constraint("Equal", 3, 5),
    Sketcher.Constraint("Equal", 5, 9),
    Sketcher.Constraint("Equal", 13, 15),
    Sketcher.Constraint("Equal", 11, 17),
    Sketcher.Constraint("Equal", 19, 23),
    Sketcher.Constraint("Radius", 1, 53.5),
    Sketcher.Constraint("Angle", 14, Q("-45 deg")),
    Sketcher.Constraint("DistanceY", 23, 2, -1, 1, 61.5),
    Sketcher.Constraint("DistanceY", -1, 1, 7, 1, 52.410401),
    Sketcher.Constraint("DistanceX", -1, 1, 22, 2, 7.026199),
    Sketcher.Constraint("Distance", 8, 7.738148),
    Sketcher.Constraint("Distance", 20, 7.74528),
    Sketcher.Constraint("DistanceX", 10, 1, 10, 2, 11.524443),
    Sketcher.Constraint("DistanceX", 0, 2, -1, 1, 10.71277),
    Sketcher.Constraint("DistanceX", 3, 2, -1, 1, 61.456289),
    Sketcher.Constraint("DistanceY", 3, 2, -1, 1, 5.73874),
    Sketcher.Constraint("DistanceX", 9, 2, -1, 1, 5.695029),
    Sketcher.Constraint("DistanceX", -1, 1, 12, 2, 10.13305),
    Sketcher.Constraint("DistanceX", -1, 1, 13, 2, 55.252839),
    Sketcher.Constraint("DistanceY", -1, 1, 13, 2, 72.733489),
    Sketcher.Constraint("DistanceX", -1, 1, 14, 2, 72.733489),
    Sketcher.Constraint("DistanceY", -1, 1, 15, 2, 10.13305),
])
pad5 = body.newObject("PartDesign::Pad", "Pad004")
pad5.Profile = sketch10
pad5.Length = 104
pad5.Reversed = True

# Sketch on XZ plane
sketch11 = body.newObject("Sketcher::SketchObject", "Sketch010")
sketch11.AttachmentSupport = (doc.getObject("XZ_Plane"), [""])
sketch11.MapMode = "FlatFace"
sketch11.AttachmentOffset = App.Placement(App.Vector(0, 0, 4), App.Rotation())
sketch11.addGeometry([
    Part.LineSegment(App.Vector(58.959, -4.615, 0), App.Vector(59, -4.593, 0)),  # 0
    Part.LineSegment(App.Vector(59, -4.593, 0), App.Vector(59, 4.593, 0)),  # 1
    Part.LineSegment(App.Vector(59, 4.593, 0), App.Vector(58.959, 4.615, 0)),  # 2
    Part.LineSegment(App.Vector(58.959, 4.615, 0), App.Vector(50.492, 9.25, 0)),  # 3
    Part.LineSegment(App.Vector(50.492, 9.25, 0), App.Vector(69.773, 54.677, 0)),  # 4
    Part.LineSegment(App.Vector(69.773, 54.677, 0), App.Vector(54.677, 69.773, 0)),  # 5
    Part.LineSegment(App.Vector(54.677, 69.773, 0), App.Vector(9.25, 50.492, 0)),  # 6
    Part.LineSegment(App.Vector(9.25, 50.492, 0), App.Vector(4.615, 58.959, 0)),  # 7
    Part.LineSegment(App.Vector(4.615, 58.959, 0), App.Vector(4.593, 59, 0)),  # 8
    Part.LineSegment(App.Vector(4.593, 59, 0), App.Vector(-4.593, 59, 0)),  # 9
    Part.LineSegment(App.Vector(-4.593, 59, 0), App.Vector(-4.615, 58.959, 0)),  # 10
    Part.LineSegment(App.Vector(-4.615, 58.959, 0), App.Vector(-9.25, 50.492, 0)),  # 11
    Part.ArcOfCircle(Part.Circle(App.Vector(0, 0, 0), App.Vector(0, 0, 1), 51.333), math.radians(100), math.radians(170)),  # 12
    Part.LineSegment(App.Vector(-50.492, 9.25, 0), App.Vector(-58.959, 4.615, 0)),  # 13
    Part.LineSegment(App.Vector(-58.959, 4.615, 0), App.Vector(-59, 4.593, 0)),  # 14
    Part.LineSegment(App.Vector(-59, 4.593, 0), App.Vector(-59, -4.593, 0)),  # 15
    Part.LineSegment(App.Vector(-59, -4.593, 0), App.Vector(-58.959, -4.615, 0)),  # 16
    Part.LineSegment(App.Vector(-58.959, -4.615, 0), App.Vector(-50.492, -9.25, 0)),  # 17
    Part.ArcOfCircle(Part.Circle(App.Vector(0, 0, 0), App.Vector(0, 0, 1), 51.333), math.radians(-170), math.radians(-100)),  # 18
    Part.LineSegment(App.Vector(-9.25, -50.492, 0), App.Vector(-4.615, -58.959, 0)),  # 19
    Part.LineSegment(App.Vector(-4.615, -58.959, 0), App.Vector(-4.593, -59, 0)),  # 20
    Part.LineSegment(App.Vector(-4.593, -59, 0), App.Vector(4.593, -59, 0)),  # 21
    Part.LineSegment(App.Vector(4.593, -59, 0), App.Vector(4.615, -58.959, 0)),  # 22
    Part.LineSegment(App.Vector(4.615, -58.959, 0), App.Vector(9.25, -50.492, 0)),  # 23
    Part.ArcOfCircle(Part.Circle(App.Vector(0, 0, 0), App.Vector(0, 0, 1), 51.333), math.radians(-80), math.radians(-10)),  # 24
    Part.LineSegment(App.Vector(50.492, -9.25, 0), App.Vector(58.959, -4.615, 0)),  # 25
], False)
sketch11.addConstraint([
    Sketcher.Constraint("Coincident", 0, 2, 1, 1),
    Sketcher.Constraint("Coincident", 1, 2, 2, 1),
    Sketcher.Constraint("Coincident", 2, 2, 3, 1),
    Sketcher.Constraint("Coincident", 3, 2, 4, 1),
    Sketcher.Constraint("Coincident", 4, 2, 5, 1),
    Sketcher.Constraint("Coincident", 5, 2, 6, 1),
    Sketcher.Constraint("Coincident", 6, 2, 7, 1),
    Sketcher.Constraint("Coincident", 7, 2, 8, 1),
    Sketcher.Constraint("Coincident", 8, 2, 9, 1),
    Sketcher.Constraint("Coincident", 9, 2, 10, 1),
    Sketcher.Constraint("Coincident", 10, 2, 11, 1),
    Sketcher.Constraint("Coincident", 11, 2, 12, 1),
    Sketcher.Constraint("Coincident", 12, 2, 13, 1),
    Sketcher.Constraint("Coincident", 13, 2, 14, 1),
    Sketcher.Constraint("Coincident", 14, 2, 15, 1),
    Sketcher.Constraint("Coincident", 15, 2, 16, 1),
    Sketcher.Constraint("Coincident", 16, 2, 17, 1),
    Sketcher.Constraint("Coincident", 17, 2, 18, 1),
    Sketcher.Constraint("Coincident", 18, 2, 19, 1),
    Sketcher.Constraint("Coincident", 19, 2, 20, 1),
    Sketcher.Constraint("Coincident", 20, 2, 21, 1),
    Sketcher.Constraint("Coincident", 21, 2, 22, 1),
    Sketcher.Constraint("Coincident", 22, 2, 23, 1),
    Sketcher.Constraint("Coincident", 23, 2, 24, 1),
    Sketcher.Constraint("Coincident", 24, 2, 25, 1),
    Sketcher.Constraint("Coincident", 25, 2, 0, 1),
    Sketcher.Constraint("Vertical", 1),
    Sketcher.Constraint("Horizontal", 9),
    Sketcher.Constraint("Vertical", 15),
    Sketcher.Constraint("Horizontal", 21),
    Sketcher.Constraint("Coincident", 12, 3, -1, 1),
    Sketcher.Constraint("Coincident", 18, 3, -1, 1),
    Sketcher.Constraint("Coincident", 24, 3, -1, 1),
    Sketcher.Constraint("Equal", 12, 18),
    Sketcher.Constraint("Equal", 18, 24),
    Sketcher.Constraint("Symmetric", 0, 2, 14, 2, -1, 1),
    Sketcher.Constraint("Symmetric", 2, 2, 16, 2, -1, 1),
    Sketcher.Constraint("Symmetric", 3, 2, 17, 2, -1, 1),
    Sketcher.Constraint("Symmetric", 6, 2, 18, 2, -1, 1),
    Sketcher.Constraint("Symmetric", 7, 2, 19, 2, -1, 1),
    Sketcher.Constraint("Symmetric", 8, 2, 20, 2, -1, 1),
    Sketcher.Constraint("Symmetric", 10, 2, 22, 2, -1, 1),
    Sketcher.Constraint("Symmetric", 13, 2, 25, 2, -1, 1),
    Sketcher.Constraint("Symmetric", 7, 2, 10, 2, -2),
    Sketcher.Constraint("Symmetric", 2, 2, 13, 2, -2),
    Sketcher.Constraint("Parallel", 2, 3),
    Sketcher.Constraint("Perpendicular", 0, 7),
    Sketcher.Constraint("Parallel", 7, 8),
    Sketcher.Constraint("Perpendicular", 3, 10),
    Sketcher.Constraint("Parallel", 10, 11),
    Sketcher.Constraint("Perpendicular", 8, 13),
    Sketcher.Constraint("Perpendicular", 11, 16),
    Sketcher.Constraint("Perpendicular", 17, 22),
    Sketcher.Constraint("Parallel", 22, 23),
    Sketcher.Constraint("Perpendicular", 20, 25),
    Sketcher.Constraint("Horizontal", 6, 2, 11, 2),
    Sketcher.Constraint("Equal", 21, 1),
    Sketcher.Constraint("Equal", 4, 6),
    Sketcher.Constraint("Equal", 3, 7),
    Sketcher.Constraint("Equal", 2, 8),
    Sketcher.Constraint("Angle", 5, Q("135 deg")),
    Sketcher.Constraint("DistanceX", -1, 1, 0, 2, 59.0),
    Sketcher.Constraint("Radius", 12, 51.332636),
    Sketcher.Constraint("DistanceX", 9, 2, 9, 1, 9.185248),
    Sketcher.Constraint("DistanceX", -1, 1, 2, 2, 58.9589),
    Sketcher.Constraint("DistanceY", -1, 1, 4, 2, 54.677398),
    Sketcher.Constraint("DistanceX", 6, 2, 3, 2, 41.242802),
    Sketcher.Constraint("DistanceX", 3, 2, 4, 2, 19.280979),
])
pocket6 = body.newObject("PartDesign::Pocket", "Pocket005")
pocket6.Profile = sketch11
pocket6.Length = 200

doc.recompute()
